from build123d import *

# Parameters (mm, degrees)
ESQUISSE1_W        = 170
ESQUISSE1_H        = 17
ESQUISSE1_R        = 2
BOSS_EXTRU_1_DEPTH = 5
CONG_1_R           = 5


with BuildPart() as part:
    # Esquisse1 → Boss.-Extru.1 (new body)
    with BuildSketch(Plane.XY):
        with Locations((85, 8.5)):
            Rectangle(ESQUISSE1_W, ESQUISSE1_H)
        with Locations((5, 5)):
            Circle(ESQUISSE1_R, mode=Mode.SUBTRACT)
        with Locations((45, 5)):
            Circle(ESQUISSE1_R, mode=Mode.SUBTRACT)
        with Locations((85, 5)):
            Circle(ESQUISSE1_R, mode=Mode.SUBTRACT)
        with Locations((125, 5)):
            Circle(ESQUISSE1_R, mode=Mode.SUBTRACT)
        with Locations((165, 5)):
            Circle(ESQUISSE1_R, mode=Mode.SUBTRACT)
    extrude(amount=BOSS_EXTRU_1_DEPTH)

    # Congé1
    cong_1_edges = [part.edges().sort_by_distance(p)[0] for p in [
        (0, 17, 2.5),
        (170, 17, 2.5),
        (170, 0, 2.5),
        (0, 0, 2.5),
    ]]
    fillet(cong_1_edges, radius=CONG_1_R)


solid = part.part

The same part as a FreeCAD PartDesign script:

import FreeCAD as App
import Part
import Sketcher
from FreeCAD import Vector
Q = App.Units.Quantity


def edges_at(feature, points):
    """Names of the edges that pass closest to the given points."""
    edges = feature.Shape.Edges
    near = lambda p: min(range(len(edges)), key=lambda i: edges[i].distToShape(Part.Vertex(*p))[0])
    return sorted({f"Edge{near(p) + 1}" for p in points})


def add_polygon(sketch, points):
    """Adds a closed chain of lines whose ends are joined by coincident constraints."""
    first, n = sketch.GeometryCount, len(points)
    for a, b in zip(points, points[1:] + points[:1]):
        sketch.addGeometry(Part.LineSegment(App.Vector(*a, 0), App.Vector(*b, 0)), False)
    for i in range(n):
        sketch.addConstraint(Sketcher.Constraint("Coincident", first + i, 2, first + (i + 1) % n, 1))

doc = App.newDocument("Part")
body = doc.addObject("PartDesign::Body", "Body")

# Sketch on XY plane
sketch1 = body.newObject("Sketcher::SketchObject", "Sketch")
sketch1.AttachmentSupport = (doc.getObject("XY_Plane"), [""])
sketch1.MapMode = "FlatFace"
add_polygon(sketch1, [(0, 17), (0, 0), (170, 0), (170, 17)])  # lines 0-3
sketch1.addGeometry(Part.Circle(Vector(5, 5, 0), Vector(0, 0, 1), 2), False)  # 4
sketch1.addGeometry(Part.Circle(Vector(45, 5, 0), Vector(0, 0, 1), 2), False)  # 5
sketch1.addGeometry(Part.Circle(Vector(85, 5, 0), Vector(0, 0, 1), 2), False)  # 6
sketch1.addGeometry(Part.Circle(Vector(125, 5, 0), Vector(0, 0, 1), 2), False)  # 7
sketch1.addGeometry(Part.Circle(Vector(165, 5, 0), Vector(0, 0, 1), 2), False)  # 8
sketch1.addConstraint([
    Sketcher.Constraint("Vertical", 0),
    Sketcher.Constraint("Horizontal", 1),
    Sketcher.Constraint("Vertical", 2),
    Sketcher.Constraint("Horizontal", 3),
    Sketcher.Constraint("Coincident", 0, 2, -1, 1),
    Sketcher.Constraint("Equal", 4, 5),
    Sketcher.Constraint("Equal", 5, 6),
    Sketcher.Constraint("Equal", 6, 7),
    Sketcher.Constraint("Equal", 7, 8),
    Sketcher.Constraint("Horizontal", 4, 3, 5, 3),
    Sketcher.Constraint("Horizontal", 5, 3, 6, 3),
    Sketcher.Constraint("Horizontal", 6, 3, 7, 3),
    Sketcher.Constraint("Horizontal", 7, 3, 8, 3),
    Sketcher.Constraint("Diameter", 4, Q("4 mm")),
    Sketcher.Constraint("DistanceX", 1, 1, 1, 2, Q("170 mm")),
    Sketcher.Constraint("DistanceY", 0, 2, 0, 1, Q("17 mm")),
    Sketcher.Constraint("DistanceX", -1, 1, 4, 3, Q("5 mm")),
    Sketcher.Constraint("DistanceY", -1, 1, 4, 3, Q("5 mm")),
    Sketcher.Constraint("DistanceX", -1, 1, 5, 3, Q("45 mm")),
    Sketcher.Constraint("DistanceX", -1, 1, 6, 3, Q("85 mm")),
    Sketcher.Constraint("DistanceX", -1, 1, 7, 3, Q("125 mm")),
    Sketcher.Constraint("DistanceX", -1, 1, 8, 3, Q("165 mm")),
])
pad1 = body.newObject("PartDesign::Pad", "Pad")
pad1.Profile = sketch1
pad1.Length = 5
doc.recompute()

fillet = body.newObject("PartDesign::Fillet", "Fillet")
fillet.Base = (pad1, edges_at(pad1, [
    (0, 17, 2.5),
    (170, 17, 2.5),
    (170, 0, 2.5),
    (0, 0, 2.5),
]))
fillet.Radius = 5

doc.recompute()
